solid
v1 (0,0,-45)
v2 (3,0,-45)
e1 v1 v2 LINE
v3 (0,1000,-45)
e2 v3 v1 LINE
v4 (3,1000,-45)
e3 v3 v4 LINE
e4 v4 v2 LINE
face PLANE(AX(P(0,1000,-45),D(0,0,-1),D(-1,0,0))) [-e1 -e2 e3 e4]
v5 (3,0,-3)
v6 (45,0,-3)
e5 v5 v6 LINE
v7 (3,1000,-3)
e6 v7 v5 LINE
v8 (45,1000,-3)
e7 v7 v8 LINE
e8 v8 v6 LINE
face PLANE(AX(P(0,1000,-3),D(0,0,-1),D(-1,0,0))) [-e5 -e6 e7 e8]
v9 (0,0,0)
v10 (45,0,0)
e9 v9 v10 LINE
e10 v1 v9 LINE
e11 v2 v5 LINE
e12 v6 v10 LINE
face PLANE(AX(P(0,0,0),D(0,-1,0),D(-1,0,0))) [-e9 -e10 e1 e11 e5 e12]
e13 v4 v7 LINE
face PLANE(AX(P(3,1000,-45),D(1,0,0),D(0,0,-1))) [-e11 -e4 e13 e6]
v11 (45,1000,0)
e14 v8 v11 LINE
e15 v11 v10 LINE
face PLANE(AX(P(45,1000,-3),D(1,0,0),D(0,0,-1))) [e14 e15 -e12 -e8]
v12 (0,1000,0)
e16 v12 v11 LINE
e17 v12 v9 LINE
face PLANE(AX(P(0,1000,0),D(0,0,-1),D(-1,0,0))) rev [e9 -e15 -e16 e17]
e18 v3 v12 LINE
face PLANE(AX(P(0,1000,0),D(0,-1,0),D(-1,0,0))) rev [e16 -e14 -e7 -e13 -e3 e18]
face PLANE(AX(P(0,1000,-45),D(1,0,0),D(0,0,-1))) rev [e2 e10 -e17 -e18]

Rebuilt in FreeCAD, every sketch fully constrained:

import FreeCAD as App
import Part
import Sketcher
Q = App.Units.Quantity

doc = App.newDocument("Part")
body = doc.addObject("PartDesign::Body", "Body")

sketch1 = doc.addObject("Sketcher::SketchObject", "Sketch")
body.addObject(sketch1)
sketch1.AttachmentSupport = (doc.XZ_Plane, [""])
sketch1.MapMode = "FlatFace"
sketch1.addGeometry([
    Part.LineSegment(App.Vector(0, -45, 0), App.Vector(0, 0, 0)),
    Part.LineSegment(App.Vector(0, 0, 0), App.Vector(45, 0, 0)),
    Part.LineSegment(App.Vector(45, 0, 0), App.Vector(45, -3, 0)),
    Part.LineSegment(App.Vector(45, -3, 0), App.Vector(3, -3, 0)),
    Part.LineSegment(App.Vector(3, -3, 0), App.Vector(3, -45, 0)),
    Part.LineSegment(App.Vector(3, -45, 0), App.Vector(0, -45, 0)),
], False)
sketch1.addConstraint([
    Sketcher.Constraint("Coincident", 0, 2, 1, 1),
    Sketcher.Constraint("Coincident", 1, 2, 2, 1),
    Sketcher.Constraint("Coincident", 2, 2, 3, 1),
    Sketcher.Constraint("Coincident", 3, 2, 4, 1),
    Sketcher.Constraint("Coincident", 4, 2, 5, 1),
    Sketcher.Constraint("Coincident", 5, 2, 0, 1),
    Sketcher.Constraint("Vertical", 0),
    Sketcher.Constraint("Horizontal", 1),
    Sketcher.Constraint("Vertical", 2),
    Sketcher.Constraint("Horizontal", 3),
    Sketcher.Constraint("Vertical", 4),
    Sketcher.Constraint("Horizontal", 5),
    Sketcher.Constraint("Coincident", 0, 2, -1, 1),
    Sketcher.Constraint("Equal", 1, 0),
    Sketcher.Constraint("Equal", 5, 2),
    Sketcher.Constraint("DistanceX", 1, 1, 1, 2, Q("45 mm")),
    Sketcher.Constraint("DistanceX", 3, 2, 3, 1, Q("42 mm")),
])
pad1 = doc.addObject("PartDesign::Pad", "Pad")
body.addObject(pad1)
pad1.Profile = sketch1
pad1.Length = 1000
pad1.Reversed = True

doc.recompute()
